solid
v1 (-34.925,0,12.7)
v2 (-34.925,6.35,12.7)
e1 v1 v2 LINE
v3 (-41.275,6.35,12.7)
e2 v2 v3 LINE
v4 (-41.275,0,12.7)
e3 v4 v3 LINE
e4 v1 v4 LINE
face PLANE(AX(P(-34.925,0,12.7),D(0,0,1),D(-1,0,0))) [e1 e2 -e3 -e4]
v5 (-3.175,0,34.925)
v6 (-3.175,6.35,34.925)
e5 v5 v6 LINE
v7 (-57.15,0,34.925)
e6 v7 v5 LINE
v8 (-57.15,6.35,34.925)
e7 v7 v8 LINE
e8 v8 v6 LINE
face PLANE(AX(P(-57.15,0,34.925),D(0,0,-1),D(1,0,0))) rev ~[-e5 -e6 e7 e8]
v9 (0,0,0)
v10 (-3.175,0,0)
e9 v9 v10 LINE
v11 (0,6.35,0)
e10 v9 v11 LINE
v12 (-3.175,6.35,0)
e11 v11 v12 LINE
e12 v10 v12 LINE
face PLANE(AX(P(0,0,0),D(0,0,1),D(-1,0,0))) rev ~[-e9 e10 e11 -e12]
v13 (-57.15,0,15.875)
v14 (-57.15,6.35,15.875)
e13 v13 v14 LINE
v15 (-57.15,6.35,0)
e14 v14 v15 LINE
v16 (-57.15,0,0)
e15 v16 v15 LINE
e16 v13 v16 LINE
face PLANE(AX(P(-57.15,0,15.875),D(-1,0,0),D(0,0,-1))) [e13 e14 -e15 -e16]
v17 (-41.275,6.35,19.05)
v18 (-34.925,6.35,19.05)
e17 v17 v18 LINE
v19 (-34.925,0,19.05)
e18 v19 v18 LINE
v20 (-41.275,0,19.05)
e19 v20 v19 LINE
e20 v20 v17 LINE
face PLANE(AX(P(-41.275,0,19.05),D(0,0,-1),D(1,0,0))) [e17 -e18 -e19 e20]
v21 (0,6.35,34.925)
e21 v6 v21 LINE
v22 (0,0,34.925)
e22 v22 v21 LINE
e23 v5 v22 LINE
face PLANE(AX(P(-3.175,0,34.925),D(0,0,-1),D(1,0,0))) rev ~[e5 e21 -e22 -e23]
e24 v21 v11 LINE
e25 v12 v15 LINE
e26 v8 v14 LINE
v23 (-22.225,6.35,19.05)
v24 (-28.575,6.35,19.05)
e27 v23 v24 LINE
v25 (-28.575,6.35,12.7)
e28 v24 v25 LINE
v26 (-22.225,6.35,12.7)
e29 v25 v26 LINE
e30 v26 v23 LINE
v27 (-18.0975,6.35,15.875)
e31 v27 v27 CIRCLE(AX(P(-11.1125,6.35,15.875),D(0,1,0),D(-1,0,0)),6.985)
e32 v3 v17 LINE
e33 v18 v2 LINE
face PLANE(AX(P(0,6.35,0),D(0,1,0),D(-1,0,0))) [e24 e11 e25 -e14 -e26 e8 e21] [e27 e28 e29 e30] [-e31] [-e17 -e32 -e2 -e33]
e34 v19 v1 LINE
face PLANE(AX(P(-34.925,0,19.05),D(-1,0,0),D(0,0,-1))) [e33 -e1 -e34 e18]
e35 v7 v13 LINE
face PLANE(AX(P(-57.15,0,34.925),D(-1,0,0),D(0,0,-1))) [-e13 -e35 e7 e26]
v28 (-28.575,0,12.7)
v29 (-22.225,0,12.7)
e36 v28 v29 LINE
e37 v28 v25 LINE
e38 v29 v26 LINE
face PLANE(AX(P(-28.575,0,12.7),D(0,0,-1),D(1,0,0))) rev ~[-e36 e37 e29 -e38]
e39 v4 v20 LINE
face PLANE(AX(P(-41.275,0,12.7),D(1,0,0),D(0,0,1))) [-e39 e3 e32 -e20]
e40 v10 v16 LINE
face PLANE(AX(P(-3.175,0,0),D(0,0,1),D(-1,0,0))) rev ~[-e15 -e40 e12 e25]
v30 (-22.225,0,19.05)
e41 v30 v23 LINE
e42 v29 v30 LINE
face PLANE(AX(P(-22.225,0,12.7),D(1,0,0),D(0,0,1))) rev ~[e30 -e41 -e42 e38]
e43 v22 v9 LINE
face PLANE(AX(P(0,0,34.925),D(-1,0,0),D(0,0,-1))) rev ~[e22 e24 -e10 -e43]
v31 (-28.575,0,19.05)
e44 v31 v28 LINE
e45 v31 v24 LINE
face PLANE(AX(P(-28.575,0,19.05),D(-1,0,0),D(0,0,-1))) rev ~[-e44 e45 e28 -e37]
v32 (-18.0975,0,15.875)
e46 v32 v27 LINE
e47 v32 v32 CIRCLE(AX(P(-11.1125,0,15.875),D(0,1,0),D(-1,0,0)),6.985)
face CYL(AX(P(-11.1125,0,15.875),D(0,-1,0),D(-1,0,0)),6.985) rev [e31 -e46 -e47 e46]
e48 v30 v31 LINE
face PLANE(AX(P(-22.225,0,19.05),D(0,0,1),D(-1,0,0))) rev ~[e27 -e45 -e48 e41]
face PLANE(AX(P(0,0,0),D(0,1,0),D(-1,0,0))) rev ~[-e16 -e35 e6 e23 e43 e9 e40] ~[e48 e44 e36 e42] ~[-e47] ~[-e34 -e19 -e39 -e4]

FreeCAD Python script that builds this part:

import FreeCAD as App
import Part
import Sketcher

V = App.Vector
Q = App.Units.Quantity

doc = App.newDocument("Part")
body = doc.addObject("PartDesign::Body", "Body")

# Sketch on XZ plane
sketch1 = body.newObject("Sketcher::SketchObject", "Sketch")
sketch1.AttachmentSupport = (doc.getObject("XZ_Plane"), [""])
sketch1.MapMode = "FlatFace"
sketch1.addGeometry([
    Part.LineSegment(V(-57, 0, 0), V(-57, 35, 0)),  # 0
    Part.LineSegment(V(-57, 35, 0), V(0, 35, 0)),  # 1
    Part.LineSegment(V(0, 35, 0), V(0, 0, 0)),  # 2
    Part.LineSegment(V(0, 0, 0), V(-57, 0, 0)),  # 3
    Part.Circle(V(-11, 16, 0), V(0, 0, 1), 7),  # 4
    Part.LineSegment(V(-29, 19, 0), V(-29, 13, 0)),  # 5
    Part.LineSegment(V(-29, 13, 0), V(-22, 13, 0)),  # 6
    Part.LineSegment(V(-22, 13, 0), V(-22, 19, 0)),  # 7
    Part.LineSegment(V(-22, 19, 0), V(-29, 19, 0)),  # 8
    Part.LineSegment(V(-41, 13, 0), V(-35, 13, 0)),  # 9
    Part.LineSegment(V(-35, 13, 0), V(-35, 19, 0)),  # 10
    Part.LineSegment(V(-35, 19, 0), V(-41, 19, 0)),  # 11
    Part.LineSegment(V(-41, 19, 0), V(-41, 13, 0)),  # 12
], False)
sketch1.addConstraint([
    Sketcher.Constraint("Coincident", 0, 2, 1, 1),
    Sketcher.Constraint("Coincident", 1, 2, 2, 1),
    Sketcher.Constraint("Coincident", 2, 2, 3, 1),
    Sketcher.Constraint("Coincident", 3, 2, 0, 1),
    Sketcher.Constraint("Coincident", 5, 2, 6, 1),
    Sketcher.Constraint("Coincident", 6, 2, 7, 1),
    Sketcher.Constraint("Coincident", 7, 2, 8, 1),
    Sketcher.Constraint("Coincident", 8, 2, 5, 1),
    Sketcher.Constraint("Coincident", 9, 2, 10, 1),
    Sketcher.Constraint("Coincident", 10, 2, 11, 1),
    Sketcher.Constraint("Coincident", 11, 2, 12, 1),
    Sketcher.Constraint("Coincident", 12, 2, 9, 1),
    Sketcher.Constraint("Vertical", 0),
    Sketcher.Constraint("Horizontal", 1),
    Sketcher.Constraint("Vertical", 2),
    Sketcher.Constraint("Horizontal", 3),
    Sketcher.Constraint("Vertical", 5),
    Sketcher.Constraint("Horizontal", 6),
    Sketcher.Constraint("Vertical", 7),
    Sketcher.Constraint("Horizontal", 8),
    Sketcher.Constraint("Horizontal", 9),
    Sketcher.Constraint("Vertical", 10),
    Sketcher.Constraint("Horizontal", 11),
    Sketcher.Constraint("Vertical", 12),
    Sketcher.Constraint("Coincident", 2, 2, -1, 1),
    Sketcher.Constraint("Horizontal", 6, 2, 9, 2),
    Sketcher.Constraint("Horizontal", 8, 2, 10, 2),
    Sketcher.Constraint("Equal", 8, 9),
    Sketcher.Constraint("Equal", 11, 5),
    Sketcher.Constraint("Diameter", 4, Q("0.55 in")),
    Sketcher.Constraint("DistanceX", 1, 1, 1, 2, Q("2.25 in")),
    Sketcher.Constraint("DistanceX", 6, 1, 6, 2, Q("0.25 in")),
    Sketcher.Constraint("DistanceY", -1, 1, 5, 2, Q("0.5 in")),
    Sketcher.Constraint("DistanceX", 9, 2, 6, 2, Q("0.5 in")),
    Sketcher.Constraint("DistanceY", 0, 1, 0, 2, Q("1.375 in")),
    Sketcher.Constraint("DistanceX", 4, 3, -1, 1, Q("0.4375 in")),
    Sketcher.Constraint("DistanceY", -1, 1, 4, 3, Q("0.625 in")),
    Sketcher.Constraint("DistanceX", 9, 2, -1, 1, Q("1.375 in")),
])
pad1 = body.newObject("PartDesign::Pad", "Pad")
pad1.Profile = sketch1
pad1.Length = Q("0.25 in")
pad1.Reversed = True

doc.recompute()
